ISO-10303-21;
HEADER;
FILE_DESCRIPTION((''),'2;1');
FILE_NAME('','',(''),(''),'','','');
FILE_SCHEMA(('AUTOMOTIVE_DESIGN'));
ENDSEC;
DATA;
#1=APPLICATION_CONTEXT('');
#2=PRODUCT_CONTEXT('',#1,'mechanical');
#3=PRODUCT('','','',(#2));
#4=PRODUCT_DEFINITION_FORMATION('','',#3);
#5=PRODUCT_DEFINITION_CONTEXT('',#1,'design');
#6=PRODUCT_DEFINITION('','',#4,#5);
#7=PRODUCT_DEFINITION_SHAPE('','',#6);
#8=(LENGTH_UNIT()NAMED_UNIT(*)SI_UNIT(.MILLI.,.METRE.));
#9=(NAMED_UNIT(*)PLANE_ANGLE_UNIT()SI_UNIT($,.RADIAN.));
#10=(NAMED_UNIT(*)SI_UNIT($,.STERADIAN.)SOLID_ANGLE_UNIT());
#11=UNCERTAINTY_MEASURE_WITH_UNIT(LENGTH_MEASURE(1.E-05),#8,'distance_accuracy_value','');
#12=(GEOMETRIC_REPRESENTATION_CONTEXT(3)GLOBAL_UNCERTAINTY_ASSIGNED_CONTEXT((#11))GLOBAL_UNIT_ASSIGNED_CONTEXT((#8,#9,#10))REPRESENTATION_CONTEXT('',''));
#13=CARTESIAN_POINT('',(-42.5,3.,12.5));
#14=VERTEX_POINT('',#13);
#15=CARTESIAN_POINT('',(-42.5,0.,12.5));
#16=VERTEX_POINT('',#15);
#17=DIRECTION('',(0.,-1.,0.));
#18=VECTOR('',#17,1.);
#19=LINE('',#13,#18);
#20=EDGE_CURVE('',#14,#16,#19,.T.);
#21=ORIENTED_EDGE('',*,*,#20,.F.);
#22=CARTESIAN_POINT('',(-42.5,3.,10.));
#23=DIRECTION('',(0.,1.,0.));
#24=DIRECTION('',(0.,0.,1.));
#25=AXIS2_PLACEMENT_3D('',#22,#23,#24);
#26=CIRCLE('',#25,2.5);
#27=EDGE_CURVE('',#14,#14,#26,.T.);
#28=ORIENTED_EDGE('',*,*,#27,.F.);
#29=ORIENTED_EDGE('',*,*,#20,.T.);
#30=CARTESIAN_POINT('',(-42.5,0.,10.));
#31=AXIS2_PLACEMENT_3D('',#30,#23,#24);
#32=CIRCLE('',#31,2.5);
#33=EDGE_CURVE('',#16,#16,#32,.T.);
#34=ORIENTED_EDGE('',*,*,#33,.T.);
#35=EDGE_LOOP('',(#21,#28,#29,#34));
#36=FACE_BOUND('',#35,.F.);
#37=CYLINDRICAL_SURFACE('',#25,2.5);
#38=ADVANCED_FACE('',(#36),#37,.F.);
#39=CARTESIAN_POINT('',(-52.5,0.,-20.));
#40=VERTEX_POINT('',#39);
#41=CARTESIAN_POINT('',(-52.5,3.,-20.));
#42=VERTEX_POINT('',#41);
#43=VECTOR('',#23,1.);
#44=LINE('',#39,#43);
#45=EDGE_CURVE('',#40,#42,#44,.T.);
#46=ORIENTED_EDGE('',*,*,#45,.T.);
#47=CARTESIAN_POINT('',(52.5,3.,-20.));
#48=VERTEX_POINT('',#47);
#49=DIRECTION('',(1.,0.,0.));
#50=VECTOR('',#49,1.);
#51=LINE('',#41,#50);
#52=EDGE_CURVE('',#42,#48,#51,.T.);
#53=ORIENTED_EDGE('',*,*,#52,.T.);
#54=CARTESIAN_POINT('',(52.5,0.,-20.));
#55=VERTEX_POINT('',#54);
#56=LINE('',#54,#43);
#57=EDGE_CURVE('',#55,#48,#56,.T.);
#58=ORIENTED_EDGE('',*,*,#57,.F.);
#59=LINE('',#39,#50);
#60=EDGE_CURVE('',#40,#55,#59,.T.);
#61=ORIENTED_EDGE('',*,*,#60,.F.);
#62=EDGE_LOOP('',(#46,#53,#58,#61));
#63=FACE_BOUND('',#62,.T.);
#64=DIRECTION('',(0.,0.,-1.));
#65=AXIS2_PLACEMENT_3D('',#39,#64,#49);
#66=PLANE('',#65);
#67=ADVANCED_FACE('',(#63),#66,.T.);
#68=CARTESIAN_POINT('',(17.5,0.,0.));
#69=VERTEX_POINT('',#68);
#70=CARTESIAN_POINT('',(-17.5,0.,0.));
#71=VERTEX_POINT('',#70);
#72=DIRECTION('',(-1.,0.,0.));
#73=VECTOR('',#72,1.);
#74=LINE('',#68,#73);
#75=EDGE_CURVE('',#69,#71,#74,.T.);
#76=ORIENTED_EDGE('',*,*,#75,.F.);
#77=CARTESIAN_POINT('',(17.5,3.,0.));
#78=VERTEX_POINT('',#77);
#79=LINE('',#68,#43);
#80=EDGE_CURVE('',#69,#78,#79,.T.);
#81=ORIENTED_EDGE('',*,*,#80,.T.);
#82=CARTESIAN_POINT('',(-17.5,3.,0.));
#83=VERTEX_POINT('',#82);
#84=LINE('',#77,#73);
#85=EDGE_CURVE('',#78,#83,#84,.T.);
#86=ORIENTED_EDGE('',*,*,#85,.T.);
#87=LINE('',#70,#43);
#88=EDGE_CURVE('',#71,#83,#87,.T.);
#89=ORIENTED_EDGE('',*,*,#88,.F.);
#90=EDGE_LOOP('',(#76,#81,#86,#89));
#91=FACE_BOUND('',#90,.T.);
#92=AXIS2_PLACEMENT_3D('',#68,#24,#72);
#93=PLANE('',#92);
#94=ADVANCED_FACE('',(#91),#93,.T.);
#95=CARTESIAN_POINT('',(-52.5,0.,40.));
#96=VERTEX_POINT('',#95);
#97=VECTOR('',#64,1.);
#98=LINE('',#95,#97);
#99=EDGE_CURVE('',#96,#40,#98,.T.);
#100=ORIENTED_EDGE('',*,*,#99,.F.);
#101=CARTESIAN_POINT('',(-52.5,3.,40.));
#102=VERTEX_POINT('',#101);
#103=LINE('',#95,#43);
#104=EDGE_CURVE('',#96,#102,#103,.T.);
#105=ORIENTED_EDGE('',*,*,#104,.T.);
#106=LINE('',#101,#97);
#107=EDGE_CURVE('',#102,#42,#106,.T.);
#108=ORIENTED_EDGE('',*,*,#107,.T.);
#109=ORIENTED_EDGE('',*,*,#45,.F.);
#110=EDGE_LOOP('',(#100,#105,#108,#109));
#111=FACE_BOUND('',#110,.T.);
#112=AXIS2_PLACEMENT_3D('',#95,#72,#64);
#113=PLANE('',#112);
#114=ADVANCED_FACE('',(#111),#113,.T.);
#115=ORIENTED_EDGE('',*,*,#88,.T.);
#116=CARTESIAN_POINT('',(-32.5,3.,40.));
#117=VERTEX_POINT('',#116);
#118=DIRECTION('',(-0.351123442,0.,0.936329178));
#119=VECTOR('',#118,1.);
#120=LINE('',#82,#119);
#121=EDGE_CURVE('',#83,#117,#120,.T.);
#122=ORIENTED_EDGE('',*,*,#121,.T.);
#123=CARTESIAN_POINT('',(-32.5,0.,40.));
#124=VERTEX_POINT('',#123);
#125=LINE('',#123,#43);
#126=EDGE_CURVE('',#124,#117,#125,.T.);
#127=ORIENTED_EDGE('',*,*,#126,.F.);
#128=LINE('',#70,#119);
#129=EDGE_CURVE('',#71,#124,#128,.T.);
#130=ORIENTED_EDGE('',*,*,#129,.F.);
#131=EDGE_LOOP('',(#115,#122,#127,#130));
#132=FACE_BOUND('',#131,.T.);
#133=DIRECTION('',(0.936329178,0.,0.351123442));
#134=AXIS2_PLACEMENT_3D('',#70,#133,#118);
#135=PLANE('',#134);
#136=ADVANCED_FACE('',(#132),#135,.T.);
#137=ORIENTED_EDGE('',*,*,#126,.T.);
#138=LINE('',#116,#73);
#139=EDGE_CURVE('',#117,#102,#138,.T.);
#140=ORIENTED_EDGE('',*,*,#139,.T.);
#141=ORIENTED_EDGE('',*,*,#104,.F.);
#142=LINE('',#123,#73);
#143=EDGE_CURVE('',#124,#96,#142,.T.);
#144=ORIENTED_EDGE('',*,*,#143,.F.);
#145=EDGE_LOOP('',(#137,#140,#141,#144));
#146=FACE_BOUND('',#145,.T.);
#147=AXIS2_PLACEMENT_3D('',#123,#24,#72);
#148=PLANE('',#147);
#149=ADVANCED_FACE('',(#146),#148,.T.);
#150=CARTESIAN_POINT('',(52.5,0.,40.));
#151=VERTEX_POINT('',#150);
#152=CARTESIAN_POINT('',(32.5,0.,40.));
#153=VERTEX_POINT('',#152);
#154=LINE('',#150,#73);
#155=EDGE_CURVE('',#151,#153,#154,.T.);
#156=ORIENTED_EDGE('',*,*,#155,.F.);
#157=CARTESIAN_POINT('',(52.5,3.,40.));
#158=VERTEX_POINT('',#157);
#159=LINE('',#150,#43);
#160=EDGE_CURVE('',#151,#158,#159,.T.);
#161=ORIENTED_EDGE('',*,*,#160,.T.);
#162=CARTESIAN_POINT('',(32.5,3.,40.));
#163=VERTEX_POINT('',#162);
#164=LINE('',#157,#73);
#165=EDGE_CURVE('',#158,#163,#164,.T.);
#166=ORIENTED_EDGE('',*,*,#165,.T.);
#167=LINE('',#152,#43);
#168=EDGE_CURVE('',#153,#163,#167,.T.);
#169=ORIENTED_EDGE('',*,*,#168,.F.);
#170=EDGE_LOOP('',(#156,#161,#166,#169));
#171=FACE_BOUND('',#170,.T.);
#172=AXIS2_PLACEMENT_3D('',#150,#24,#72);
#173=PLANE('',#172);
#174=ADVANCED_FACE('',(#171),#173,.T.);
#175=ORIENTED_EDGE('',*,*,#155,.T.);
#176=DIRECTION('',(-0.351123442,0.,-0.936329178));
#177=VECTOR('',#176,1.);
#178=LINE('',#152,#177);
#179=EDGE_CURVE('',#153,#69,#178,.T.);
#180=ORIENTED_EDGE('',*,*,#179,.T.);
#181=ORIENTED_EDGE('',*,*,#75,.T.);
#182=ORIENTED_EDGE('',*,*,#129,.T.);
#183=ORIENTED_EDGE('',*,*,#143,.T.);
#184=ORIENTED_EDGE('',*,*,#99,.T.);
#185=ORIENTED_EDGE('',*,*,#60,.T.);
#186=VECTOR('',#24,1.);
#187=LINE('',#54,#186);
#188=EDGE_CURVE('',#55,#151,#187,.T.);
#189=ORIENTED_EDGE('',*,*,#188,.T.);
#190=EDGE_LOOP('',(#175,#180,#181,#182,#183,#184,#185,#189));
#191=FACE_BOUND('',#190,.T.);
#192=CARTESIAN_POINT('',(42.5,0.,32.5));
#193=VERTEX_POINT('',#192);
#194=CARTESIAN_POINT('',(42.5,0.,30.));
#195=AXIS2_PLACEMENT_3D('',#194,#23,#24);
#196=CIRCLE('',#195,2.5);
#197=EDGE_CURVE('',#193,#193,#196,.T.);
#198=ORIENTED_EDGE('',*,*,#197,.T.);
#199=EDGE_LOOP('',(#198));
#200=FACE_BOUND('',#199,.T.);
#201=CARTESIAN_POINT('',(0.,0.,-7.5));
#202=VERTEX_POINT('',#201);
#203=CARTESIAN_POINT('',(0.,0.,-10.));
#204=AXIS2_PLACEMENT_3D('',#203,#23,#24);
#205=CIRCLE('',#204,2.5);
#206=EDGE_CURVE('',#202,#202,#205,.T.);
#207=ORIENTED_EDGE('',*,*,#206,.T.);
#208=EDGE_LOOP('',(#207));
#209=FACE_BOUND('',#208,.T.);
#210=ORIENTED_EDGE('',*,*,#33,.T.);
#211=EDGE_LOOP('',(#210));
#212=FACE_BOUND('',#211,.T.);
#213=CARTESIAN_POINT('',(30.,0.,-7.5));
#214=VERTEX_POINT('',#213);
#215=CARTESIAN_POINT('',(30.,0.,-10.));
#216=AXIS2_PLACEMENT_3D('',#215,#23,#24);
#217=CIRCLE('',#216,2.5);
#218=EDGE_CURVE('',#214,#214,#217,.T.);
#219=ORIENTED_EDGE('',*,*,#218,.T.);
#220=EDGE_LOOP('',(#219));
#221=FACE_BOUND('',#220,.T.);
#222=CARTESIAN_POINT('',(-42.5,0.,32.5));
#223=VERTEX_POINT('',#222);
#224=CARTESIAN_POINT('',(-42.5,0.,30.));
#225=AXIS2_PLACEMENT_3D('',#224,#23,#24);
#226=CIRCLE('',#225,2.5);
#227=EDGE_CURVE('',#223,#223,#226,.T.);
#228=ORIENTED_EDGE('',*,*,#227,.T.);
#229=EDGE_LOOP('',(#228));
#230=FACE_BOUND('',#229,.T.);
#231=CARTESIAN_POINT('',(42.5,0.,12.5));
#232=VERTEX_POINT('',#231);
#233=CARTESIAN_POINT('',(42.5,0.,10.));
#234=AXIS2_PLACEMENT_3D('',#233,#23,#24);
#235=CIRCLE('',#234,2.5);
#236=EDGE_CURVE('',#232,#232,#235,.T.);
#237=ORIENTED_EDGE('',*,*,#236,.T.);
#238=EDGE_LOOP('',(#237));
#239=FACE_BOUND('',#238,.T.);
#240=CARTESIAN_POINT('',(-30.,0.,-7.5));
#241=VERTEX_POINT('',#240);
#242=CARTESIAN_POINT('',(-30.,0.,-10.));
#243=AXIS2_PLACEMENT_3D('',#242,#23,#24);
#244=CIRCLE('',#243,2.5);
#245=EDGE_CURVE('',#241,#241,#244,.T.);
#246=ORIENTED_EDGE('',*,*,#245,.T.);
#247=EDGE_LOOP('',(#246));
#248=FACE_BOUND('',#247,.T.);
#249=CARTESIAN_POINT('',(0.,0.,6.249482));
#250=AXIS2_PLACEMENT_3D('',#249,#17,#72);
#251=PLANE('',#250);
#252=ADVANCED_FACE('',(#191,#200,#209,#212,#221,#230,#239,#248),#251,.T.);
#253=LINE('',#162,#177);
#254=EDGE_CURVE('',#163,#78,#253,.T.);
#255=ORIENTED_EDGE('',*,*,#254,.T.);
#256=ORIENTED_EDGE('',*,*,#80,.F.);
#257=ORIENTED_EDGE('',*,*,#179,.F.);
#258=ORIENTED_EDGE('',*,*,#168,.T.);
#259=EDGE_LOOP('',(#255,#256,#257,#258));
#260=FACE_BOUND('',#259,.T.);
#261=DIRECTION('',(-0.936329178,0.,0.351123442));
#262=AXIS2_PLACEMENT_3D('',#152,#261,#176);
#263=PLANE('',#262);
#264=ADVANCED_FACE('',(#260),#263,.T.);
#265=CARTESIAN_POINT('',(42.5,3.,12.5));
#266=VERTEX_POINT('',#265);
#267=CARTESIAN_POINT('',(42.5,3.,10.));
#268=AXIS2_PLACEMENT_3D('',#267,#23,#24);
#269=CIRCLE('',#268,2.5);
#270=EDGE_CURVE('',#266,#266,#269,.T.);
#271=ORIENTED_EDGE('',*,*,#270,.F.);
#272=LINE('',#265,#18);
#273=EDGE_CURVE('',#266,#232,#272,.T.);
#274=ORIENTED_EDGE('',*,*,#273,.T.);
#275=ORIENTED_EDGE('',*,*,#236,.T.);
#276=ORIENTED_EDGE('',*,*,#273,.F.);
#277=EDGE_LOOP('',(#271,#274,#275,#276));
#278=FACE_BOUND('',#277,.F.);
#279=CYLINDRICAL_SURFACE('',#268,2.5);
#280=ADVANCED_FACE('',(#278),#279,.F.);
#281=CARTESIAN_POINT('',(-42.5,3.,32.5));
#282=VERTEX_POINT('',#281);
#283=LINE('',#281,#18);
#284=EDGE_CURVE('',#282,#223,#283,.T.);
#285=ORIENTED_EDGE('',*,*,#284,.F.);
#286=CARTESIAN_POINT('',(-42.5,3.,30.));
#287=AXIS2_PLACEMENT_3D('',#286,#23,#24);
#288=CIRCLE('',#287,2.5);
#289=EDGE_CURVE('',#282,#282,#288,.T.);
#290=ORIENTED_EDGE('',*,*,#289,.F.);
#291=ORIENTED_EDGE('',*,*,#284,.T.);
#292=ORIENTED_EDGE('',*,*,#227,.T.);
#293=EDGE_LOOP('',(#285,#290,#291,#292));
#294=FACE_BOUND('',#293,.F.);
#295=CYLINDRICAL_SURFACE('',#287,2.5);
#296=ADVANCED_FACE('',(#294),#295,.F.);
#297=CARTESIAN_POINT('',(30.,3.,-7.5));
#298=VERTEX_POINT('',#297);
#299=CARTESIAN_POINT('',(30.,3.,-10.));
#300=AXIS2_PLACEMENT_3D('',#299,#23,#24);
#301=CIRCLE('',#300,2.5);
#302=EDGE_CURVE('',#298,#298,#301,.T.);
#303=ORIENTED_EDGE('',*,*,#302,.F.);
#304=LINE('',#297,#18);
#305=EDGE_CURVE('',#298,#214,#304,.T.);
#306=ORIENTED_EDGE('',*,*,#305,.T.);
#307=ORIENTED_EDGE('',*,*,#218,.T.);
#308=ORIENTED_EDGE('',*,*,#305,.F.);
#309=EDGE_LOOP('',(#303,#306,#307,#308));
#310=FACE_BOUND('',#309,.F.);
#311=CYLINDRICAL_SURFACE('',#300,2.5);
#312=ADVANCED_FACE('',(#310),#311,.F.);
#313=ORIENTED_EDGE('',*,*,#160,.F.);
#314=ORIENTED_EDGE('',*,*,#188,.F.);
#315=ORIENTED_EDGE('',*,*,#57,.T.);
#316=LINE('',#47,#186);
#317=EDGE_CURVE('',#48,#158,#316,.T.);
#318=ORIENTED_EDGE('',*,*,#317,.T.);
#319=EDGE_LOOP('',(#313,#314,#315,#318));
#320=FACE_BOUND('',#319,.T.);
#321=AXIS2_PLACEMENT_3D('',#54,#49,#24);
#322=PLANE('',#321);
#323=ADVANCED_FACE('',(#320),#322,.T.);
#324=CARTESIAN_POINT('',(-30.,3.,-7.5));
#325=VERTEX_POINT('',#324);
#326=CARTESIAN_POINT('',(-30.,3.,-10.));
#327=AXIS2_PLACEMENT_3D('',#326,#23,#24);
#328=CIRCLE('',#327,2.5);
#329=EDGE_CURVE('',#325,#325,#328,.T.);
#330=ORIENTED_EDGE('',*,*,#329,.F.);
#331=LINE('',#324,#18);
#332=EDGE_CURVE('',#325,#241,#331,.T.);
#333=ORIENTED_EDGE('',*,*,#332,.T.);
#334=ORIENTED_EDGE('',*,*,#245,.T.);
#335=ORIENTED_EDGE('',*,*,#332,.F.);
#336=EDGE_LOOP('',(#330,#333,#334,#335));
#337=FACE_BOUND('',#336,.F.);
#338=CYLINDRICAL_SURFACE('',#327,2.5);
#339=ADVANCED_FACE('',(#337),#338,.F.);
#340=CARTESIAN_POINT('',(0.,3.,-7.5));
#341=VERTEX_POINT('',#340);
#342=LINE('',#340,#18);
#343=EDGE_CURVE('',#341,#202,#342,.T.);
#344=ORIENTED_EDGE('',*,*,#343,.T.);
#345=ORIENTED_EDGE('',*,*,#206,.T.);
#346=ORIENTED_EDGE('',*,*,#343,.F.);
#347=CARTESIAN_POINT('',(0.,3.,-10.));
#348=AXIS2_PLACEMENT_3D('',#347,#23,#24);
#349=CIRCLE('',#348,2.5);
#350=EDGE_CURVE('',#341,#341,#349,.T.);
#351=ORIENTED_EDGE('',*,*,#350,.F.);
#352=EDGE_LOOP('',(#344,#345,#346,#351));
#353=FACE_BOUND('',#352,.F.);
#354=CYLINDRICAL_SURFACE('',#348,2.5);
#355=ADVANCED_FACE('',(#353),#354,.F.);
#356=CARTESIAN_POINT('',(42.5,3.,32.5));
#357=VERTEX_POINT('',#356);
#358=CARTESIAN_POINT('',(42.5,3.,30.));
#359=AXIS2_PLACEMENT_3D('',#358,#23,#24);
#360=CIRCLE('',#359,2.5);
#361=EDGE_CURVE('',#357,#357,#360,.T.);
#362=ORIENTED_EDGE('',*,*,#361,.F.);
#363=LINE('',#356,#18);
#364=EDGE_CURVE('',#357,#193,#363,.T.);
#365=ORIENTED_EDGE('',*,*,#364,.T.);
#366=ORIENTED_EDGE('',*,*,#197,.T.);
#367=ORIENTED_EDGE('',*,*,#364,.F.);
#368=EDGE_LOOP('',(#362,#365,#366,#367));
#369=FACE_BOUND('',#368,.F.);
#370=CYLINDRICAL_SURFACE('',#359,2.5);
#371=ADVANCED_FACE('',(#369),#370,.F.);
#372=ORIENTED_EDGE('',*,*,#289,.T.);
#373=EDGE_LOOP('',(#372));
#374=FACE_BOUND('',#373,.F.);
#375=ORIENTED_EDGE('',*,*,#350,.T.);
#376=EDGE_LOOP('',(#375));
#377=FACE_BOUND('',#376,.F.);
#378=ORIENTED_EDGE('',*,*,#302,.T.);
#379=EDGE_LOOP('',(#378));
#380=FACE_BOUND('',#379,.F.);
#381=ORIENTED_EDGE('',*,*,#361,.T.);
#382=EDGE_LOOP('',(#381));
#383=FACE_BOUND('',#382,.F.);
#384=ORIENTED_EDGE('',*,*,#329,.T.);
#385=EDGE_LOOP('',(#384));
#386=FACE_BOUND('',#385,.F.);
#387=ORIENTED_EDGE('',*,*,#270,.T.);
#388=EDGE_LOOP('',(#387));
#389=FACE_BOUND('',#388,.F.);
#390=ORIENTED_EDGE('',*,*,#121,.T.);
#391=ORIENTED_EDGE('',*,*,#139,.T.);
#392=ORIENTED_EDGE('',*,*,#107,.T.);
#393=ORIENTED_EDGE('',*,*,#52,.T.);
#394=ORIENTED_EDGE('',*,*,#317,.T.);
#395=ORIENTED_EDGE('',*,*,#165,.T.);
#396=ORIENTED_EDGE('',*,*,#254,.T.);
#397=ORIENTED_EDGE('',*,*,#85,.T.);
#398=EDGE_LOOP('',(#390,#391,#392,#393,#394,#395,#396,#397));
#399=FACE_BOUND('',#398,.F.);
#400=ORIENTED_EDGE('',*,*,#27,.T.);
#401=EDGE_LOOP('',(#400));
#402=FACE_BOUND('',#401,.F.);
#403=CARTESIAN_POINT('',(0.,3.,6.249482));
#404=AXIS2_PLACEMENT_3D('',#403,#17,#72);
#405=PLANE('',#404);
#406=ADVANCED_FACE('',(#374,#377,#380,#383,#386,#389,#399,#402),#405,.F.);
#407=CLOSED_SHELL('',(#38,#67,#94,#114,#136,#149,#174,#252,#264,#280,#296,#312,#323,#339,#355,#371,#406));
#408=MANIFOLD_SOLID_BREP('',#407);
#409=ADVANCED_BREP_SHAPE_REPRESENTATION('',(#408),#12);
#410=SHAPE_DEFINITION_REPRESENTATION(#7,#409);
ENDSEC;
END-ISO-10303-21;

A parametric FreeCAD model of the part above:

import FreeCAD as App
import Part
import Sketcher
from FreeCAD import Vector
Q = App.Units.Quantity

doc = App.newDocument("Part")
params = doc.addObject("Spreadsheet::Sheet", "Params")
for row, (alias, value) in enumerate([
    ("sketch1_width", "105 mm"),
    ("sketch1_width2", "20 mm"),
    ("sketch1_width3", "35 mm"),
    ("sketch1_height", "60 mm"),
    ("pad1_length", "3 mm"),
    ("sketch2_diameter", "5 mm"),
    ("pocket1_length", "3 mm"),
], start=1):
    params.set(f"A{row}", alias)
    params.set(f"B{row}", "=" + value)
    params.setAlias(f"B{row}", alias)

body = doc.addObject("PartDesign::Body", "Body")

# Sketch on XZ plane
sketch1 = body.newObject("Sketcher::SketchObject", "Sketch")
sketch1.AttachmentSupport = (doc.getObject("XZ_Plane"), [""])
sketch1.MapMode = "FlatFace"
sketch1.addGeometry([
    Part.LineSegment(Vector(52, -20, 0), Vector(-52, -20, 0)),  # 0
    Part.LineSegment(Vector(-52, -20, 0), Vector(-52, 40, 0)),  # 1
    Part.LineSegment(Vector(-52, 40, 0), Vector(-32, 40, 0)),  # 2
    Part.LineSegment(Vector(-32, 40, 0), Vector(-18, 0, 0)),  # 3
    Part.LineSegment(Vector(-18, 0, 0), Vector(18, 0, 0)),  # 4
    Part.LineSegment(Vector(18, 0, 0), Vector(32, 40, 0)),  # 5
    Part.LineSegment(Vector(32, 40, 0), Vector(52, 40, 0)),  # 6
    Part.LineSegment(Vector(52, 40, 0), Vector(52, -20, 0)),  # 7
], False)
sketch1.addConstraint([
    Sketcher.Constraint("Coincident", 0, 2, 1, 1),
    Sketcher.Constraint("Coincident", 1, 2, 2, 1),
    Sketcher.Constraint("Coincident", 2, 2, 3, 1),
    Sketcher.Constraint("Coincident", 3, 2, 4, 1),
    Sketcher.Constraint("Coincident", 4, 2, 5, 1),
    Sketcher.Constraint("Coincident", 5, 2, 6, 1),
    Sketcher.Constraint("Coincident", 6, 2, 7, 1),
    Sketcher.Constraint("Coincident", 7, 2, 0, 1),
    Sketcher.Constraint("Horizontal", 0),
    Sketcher.Constraint("Vertical", 1),
    Sketcher.Constraint("Horizontal", 2),
    Sketcher.Constraint("Horizontal", 4),
    Sketcher.Constraint("Horizontal", 6),
    Sketcher.Constraint("Vertical", 7),
    Sketcher.Constraint("Symmetric", 3, 2, 4, 2, -1, 1),
    Sketcher.Constraint("Symmetric", 2, 2, 5, 2, -2),
    Sketcher.Constraint("Equal", 2, 6),
    Sketcher.Constraint("DistanceX", 0, 2, 0, 1, Q("105 mm")),
    Sketcher.Constraint("DistanceX", 2, 1, 2, 2, Q("20 mm")),
    Sketcher.Constraint("DistanceX", 4, 1, 4, 2, Q("35 mm")),
    Sketcher.Constraint("DistanceY", 1, 1, 1, 2, Q("60 mm")),
    Sketcher.Constraint("DistanceY", 0, 2, -1, 1, Q("20 mm")),
])
sketch1.setExpression("Constraints[17]", "Params.sketch1_width")
sketch1.setExpression("Constraints[18]", "Params.sketch1_width2")
sketch1.setExpression("Constraints[19]", "Params.sketch1_width3")
sketch1.setExpression("Constraints[20]", "Params.sketch1_height")
pad1 = body.newObject("PartDesign::Pad", "Pad")
pad1.Profile = sketch1
pad1.setExpression("Length", "Params.pad1_length")
pad1.Reversed = True

# Sketch on XZ plane
sketch2 = body.newObject("Sketcher::SketchObject", "Sketch001")
sketch2.AttachmentSupport = (doc.getObject("XZ_Plane"), [""])
sketch2.MapMode = "FlatFace"
sketch2.AttachmentOffset = App.Placement(Vector(0, 0, -3), App.Rotation())
sketch2.addGeometry([
    Part.Circle(Vector(42.5, 10, 0), Vector(0, 0, 1), 2.5),  # 0
    Part.Circle(Vector(42.5, 30, 0), Vector(0, 0, 1), 2.5),  # 1
    Part.Circle(Vector(-42.5, 30, 0), Vector(0, 0, 1), 2.5),  # 2
    Part.Circle(Vector(0, -10, 0), Vector(0, 0, 1), 2.5),  # 3
    Part.Circle(Vector(-42.5, 10, 0), Vector(0, 0, 1), 2.5),  # 4
    Part.Circle(Vector(-30, -10, 0), Vector(0, 0, 1), 2.5),  # 5
    Part.Circle(Vector(30, -10, 0), Vector(0, 0, 1), 2.5),  # 6
], False)
sketch2.addConstraint([
    Sketcher.Constraint("Equal", 0, 1),
    Sketcher.Constraint("Equal", 1, 2),
    Sketcher.Constraint("Equal", 2, 3),
    Sketcher.Constraint("Equal", 3, 4),
    Sketcher.Constraint("Equal", 4, 5),
    Sketcher.Constraint("Equal", 5, 6),
    Sketcher.Constraint("Symmetric", 1, 3, 2, 3, -2),
    Sketcher.Constraint("Symmetric", 0, 3, 4, 3, -2),
    Sketcher.Constraint("Symmetric", 5, 3, 6, 3, -2),
    Sketcher.Constraint("PointOnObject", 3, 3, -2),
    Sketcher.Constraint("Horizontal", 3, 3, 5, 3),
    Sketcher.Constraint("Vertical", 0, 3, 1, 3),
    Sketcher.Constraint("Diameter", 0, Q("5 mm")),
    Sketcher.Constraint("DistanceY", -1, 1, 0, 3, Q("10 mm")),
    Sketcher.Constraint("DistanceY", -1, 1, 1, 3, Q("30 mm")),
    Sketcher.Constraint("DistanceY", 3, 3, -1, 1, Q("10 mm")),
    Sketcher.Constraint("DistanceX", 5, 3, -1, 1, Q("30 mm")),
    Sketcher.Constraint("DistanceX", 2, 3, 1, 3, Q("85 mm")),
])
sketch2.setExpression("Constraints[12]", "Params.sketch2_diameter")
pocket1 = body.newObject("PartDesign::Pocket", "Pocket")
pocket1.Profile = sketch2
pocket1.setExpression("Length", "Params.pocket1_length")
pocket1.Reversed = True

doc.recompute()
